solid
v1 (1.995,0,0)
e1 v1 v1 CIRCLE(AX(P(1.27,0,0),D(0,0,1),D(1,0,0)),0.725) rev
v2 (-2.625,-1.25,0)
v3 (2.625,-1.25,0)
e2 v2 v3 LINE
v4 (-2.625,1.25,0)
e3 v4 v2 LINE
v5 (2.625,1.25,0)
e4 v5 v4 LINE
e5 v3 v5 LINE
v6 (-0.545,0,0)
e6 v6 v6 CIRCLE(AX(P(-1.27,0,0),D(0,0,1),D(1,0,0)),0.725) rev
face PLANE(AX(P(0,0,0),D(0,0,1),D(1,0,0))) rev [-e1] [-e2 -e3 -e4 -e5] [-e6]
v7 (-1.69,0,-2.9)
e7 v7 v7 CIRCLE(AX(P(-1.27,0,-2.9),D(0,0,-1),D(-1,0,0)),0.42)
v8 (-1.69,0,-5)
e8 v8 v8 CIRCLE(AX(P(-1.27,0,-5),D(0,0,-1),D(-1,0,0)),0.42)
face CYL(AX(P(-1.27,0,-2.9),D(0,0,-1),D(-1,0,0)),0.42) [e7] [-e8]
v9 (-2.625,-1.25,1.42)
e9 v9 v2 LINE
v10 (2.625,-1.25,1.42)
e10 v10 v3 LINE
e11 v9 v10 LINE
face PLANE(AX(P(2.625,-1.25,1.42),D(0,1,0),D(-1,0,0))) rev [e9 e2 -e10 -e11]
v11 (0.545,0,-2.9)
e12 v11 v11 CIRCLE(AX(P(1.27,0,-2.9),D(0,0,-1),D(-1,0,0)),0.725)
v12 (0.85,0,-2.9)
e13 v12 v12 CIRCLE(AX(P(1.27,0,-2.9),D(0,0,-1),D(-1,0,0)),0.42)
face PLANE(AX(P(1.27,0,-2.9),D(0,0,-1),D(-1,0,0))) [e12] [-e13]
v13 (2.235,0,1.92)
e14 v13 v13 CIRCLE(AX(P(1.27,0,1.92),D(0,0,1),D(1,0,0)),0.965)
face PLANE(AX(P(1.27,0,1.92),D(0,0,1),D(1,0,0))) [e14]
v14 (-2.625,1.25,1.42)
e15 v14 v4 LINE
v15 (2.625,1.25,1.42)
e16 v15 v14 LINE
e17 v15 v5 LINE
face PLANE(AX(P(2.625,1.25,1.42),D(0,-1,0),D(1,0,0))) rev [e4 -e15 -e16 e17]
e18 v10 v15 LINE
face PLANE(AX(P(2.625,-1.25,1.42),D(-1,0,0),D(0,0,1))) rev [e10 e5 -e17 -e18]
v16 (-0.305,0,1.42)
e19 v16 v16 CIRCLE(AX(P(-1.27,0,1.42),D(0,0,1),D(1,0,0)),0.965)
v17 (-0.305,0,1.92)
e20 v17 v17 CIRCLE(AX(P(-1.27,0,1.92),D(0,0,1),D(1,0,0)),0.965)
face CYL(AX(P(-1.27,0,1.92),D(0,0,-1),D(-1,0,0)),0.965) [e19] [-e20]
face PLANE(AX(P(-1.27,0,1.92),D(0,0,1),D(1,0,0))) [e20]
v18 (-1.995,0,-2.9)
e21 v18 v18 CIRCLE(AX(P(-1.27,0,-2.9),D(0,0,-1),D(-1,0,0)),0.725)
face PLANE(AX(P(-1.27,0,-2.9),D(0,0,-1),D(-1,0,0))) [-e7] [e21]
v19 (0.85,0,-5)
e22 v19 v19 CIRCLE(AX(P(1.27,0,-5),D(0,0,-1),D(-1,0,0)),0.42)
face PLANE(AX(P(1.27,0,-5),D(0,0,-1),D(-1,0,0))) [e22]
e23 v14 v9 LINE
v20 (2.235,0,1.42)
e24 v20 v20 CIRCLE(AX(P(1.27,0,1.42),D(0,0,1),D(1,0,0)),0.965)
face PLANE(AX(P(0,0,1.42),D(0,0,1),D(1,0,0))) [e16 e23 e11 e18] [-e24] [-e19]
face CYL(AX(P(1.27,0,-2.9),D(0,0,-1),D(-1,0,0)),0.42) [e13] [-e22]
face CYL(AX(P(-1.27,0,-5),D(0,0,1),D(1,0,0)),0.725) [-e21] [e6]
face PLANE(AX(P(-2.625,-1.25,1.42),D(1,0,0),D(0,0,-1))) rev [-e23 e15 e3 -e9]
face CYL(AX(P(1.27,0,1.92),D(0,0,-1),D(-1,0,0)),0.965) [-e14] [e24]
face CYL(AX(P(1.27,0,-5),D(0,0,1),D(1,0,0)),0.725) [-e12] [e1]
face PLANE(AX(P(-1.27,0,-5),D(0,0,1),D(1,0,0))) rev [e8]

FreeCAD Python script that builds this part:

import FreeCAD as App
import Part
import Sketcher

V = App.Vector
Q = App.Units.Quantity


def add_polygon(sketch, points):
    """Adds a closed chain of lines whose ends are joined by coincident constraints."""
    first, n = sketch.GeometryCount, len(points)
    for a, b in zip(points, points[1:] + points[:1]):
        sketch.addGeometry(Part.LineSegment(App.Vector(*a, 0), App.Vector(*b, 0)), False)
    for i in range(n):
        sketch.addConstraint(Sketcher.Constraint("Coincident", first + i, 2, first + (i + 1) % n, 1))

doc = App.newDocument("Part")
body = doc.addObject("PartDesign::Body", "Body")

# Sketch on XY plane
sketch1 = body.newObject("Sketcher::SketchObject", "Sketch")
sketch1.AttachmentSupport = (doc.getObject("XY_Plane"), [""])
sketch1.MapMode = "FlatFace"
add_polygon(sketch1, [(-2.625, 1.25), (-2.625, -1.25), (2.625, -1.25), (2.625, 1.25)])  # lines 0-3
sketch1.addConstraint(Sketcher.Constraint("Vertical", 0))
sketch1.addConstraint(Sketcher.Constraint("Horizontal", 1))
sketch1.addConstraint(Sketcher.Constraint("Vertical", 2))
sketch1.addConstraint(Sketcher.Constraint("Horizontal", 3))
sketch1.addConstraint(Sketcher.Constraint("Symmetric", 0, 2, 2, 2, -1, 1))
sketch1.addConstraint(Sketcher.Constraint("DistanceY", 0, 2, 0, 1, Q("2.5 mm")))
sketch1.addConstraint(Sketcher.Constraint("DistanceX", 1, 1, 1, 2, Q("5.25 mm")))
pad1 = body.newObject("PartDesign::Pad", "Pad")
pad1.Profile = sketch1
pad1.Length = 1.42

# Sketch on XY plane
sketch2 = body.newObject("Sketcher::SketchObject", "Sketch001")
sketch2.AttachmentSupport = (doc.getObject("XY_Plane"), [""])
sketch2.MapMode = "FlatFace"
sketch2.addGeometry(Part.Circle(V(1.27, 0, 0), V(0, 0, 1), 0.725), False)
sketch2.addGeometry(Part.Circle(V(-1.27, 0, 0), V(0, 0, 1), 0.725), False)
sketch2.addConstraint(Sketcher.Constraint("Equal", 0, 1))
sketch2.addConstraint(Sketcher.Constraint("Symmetric", 0, 3, 1, 3, -1, 1))
sketch2.addConstraint(Sketcher.Constraint("PointOnObject", 0, 3, -1))
sketch2.addConstraint(Sketcher.Constraint("Diameter", 0, Q("1.45 mm")))
sketch2.addConstraint(Sketcher.Constraint("DistanceX", -1, 1, 0, 3, Q("1.27 mm")))
pad2 = body.newObject("PartDesign::Pad", "Pad001")
pad2.Profile = sketch2
pad2.Length = 5
pad2.Reversed = True

# Sketch on XY plane
sketch3 = body.newObject("Sketcher::SketchObject", "Sketch002")
sketch3.AttachmentSupport = (doc.getObject("XY_Plane"), [""])
sketch3.MapMode = "FlatFace"
sketch3.AttachmentOffset = App.Placement(V(0, 0, 1.42), App.Rotation())
sketch3.addGeometry(Part.Circle(V(-1.27, 0, 0), V(0, 0, 1), 0.965), False)
sketch3.addGeometry(Part.Circle(V(1.27, 0, 0), V(0, 0, 1), 0.965), False)
sketch3.addConstraint(Sketcher.Constraint("Equal", 0, 1))
sketch3.addConstraint(Sketcher.Constraint("Symmetric", 0, 3, 1, 3, -1, 1))
sketch3.addConstraint(Sketcher.Constraint("PointOnObject", 0, 3, -1))
sketch3.addConstraint(Sketcher.Constraint("Diameter", 0, Q("1.93 mm")))
sketch3.addConstraint(Sketcher.Constraint("DistanceX", 0, 3, -1, 1, Q("1.27 mm")))
pad3 = body.newObject("PartDesign::Pad", "Pad002")
pad3.Profile = sketch3
pad3.Length = 0.5

# Sketch on XY plane
sketch4 = body.newObject("Sketcher::SketchObject", "Sketch003")
sketch4.AttachmentSupport = (doc.getObject("XY_Plane"), [""])
sketch4.MapMode = "FlatFace"
sketch4.AttachmentOffset = App.Placement(V(0, 0, -2.9), App.Rotation())
sketch4.addGeometry(Part.Circle(V(1.27, 0, 0), V(0, 0, 1), 0.725), False)
sketch4.addGeometry(Part.Circle(V(1.27, 0, 0), V(0, 0, 1), 0.42), False)
sketch4.addGeometry(Part.Circle(V(-1.27, 0, 0), V(0, 0, 1), 0.725), False)
sketch4.addGeometry(Part.Circle(V(-1.27, 0, 0), V(0, 0, 1), 0.42), False)
sketch4.addConstraint(Sketcher.Constraint("Coincident", 1, 3, 0, 3))
sketch4.addConstraint(Sketcher.Constraint("Coincident", 3, 3, 2, 3))
sketch4.addConstraint(Sketcher.Constraint("Equal", 0, 2))
sketch4.addConstraint(Sketcher.Constraint("Equal", 1, 3))
sketch4.addConstraint(Sketcher.Constraint("Symmetric", 0, 3, 2, 3, -1, 1))
sketch4.addConstraint(Sketcher.Constraint("PointOnObject", 0, 3, -1))
sketch4.addConstraint(Sketcher.Constraint("Diameter", 0, Q("1.45 mm")))
sketch4.addConstraint(Sketcher.Constraint("Diameter", 1, Q("0.84 mm")))
sketch4.addConstraint(Sketcher.Constraint("DistanceX", -1, 1, 0, 3, Q("1.27 mm")))
pocket1 = body.newObject("PartDesign::Pocket", "Pocket")
pocket1.Profile = sketch4
pocket1.Length = 2.1

doc.recompute()
